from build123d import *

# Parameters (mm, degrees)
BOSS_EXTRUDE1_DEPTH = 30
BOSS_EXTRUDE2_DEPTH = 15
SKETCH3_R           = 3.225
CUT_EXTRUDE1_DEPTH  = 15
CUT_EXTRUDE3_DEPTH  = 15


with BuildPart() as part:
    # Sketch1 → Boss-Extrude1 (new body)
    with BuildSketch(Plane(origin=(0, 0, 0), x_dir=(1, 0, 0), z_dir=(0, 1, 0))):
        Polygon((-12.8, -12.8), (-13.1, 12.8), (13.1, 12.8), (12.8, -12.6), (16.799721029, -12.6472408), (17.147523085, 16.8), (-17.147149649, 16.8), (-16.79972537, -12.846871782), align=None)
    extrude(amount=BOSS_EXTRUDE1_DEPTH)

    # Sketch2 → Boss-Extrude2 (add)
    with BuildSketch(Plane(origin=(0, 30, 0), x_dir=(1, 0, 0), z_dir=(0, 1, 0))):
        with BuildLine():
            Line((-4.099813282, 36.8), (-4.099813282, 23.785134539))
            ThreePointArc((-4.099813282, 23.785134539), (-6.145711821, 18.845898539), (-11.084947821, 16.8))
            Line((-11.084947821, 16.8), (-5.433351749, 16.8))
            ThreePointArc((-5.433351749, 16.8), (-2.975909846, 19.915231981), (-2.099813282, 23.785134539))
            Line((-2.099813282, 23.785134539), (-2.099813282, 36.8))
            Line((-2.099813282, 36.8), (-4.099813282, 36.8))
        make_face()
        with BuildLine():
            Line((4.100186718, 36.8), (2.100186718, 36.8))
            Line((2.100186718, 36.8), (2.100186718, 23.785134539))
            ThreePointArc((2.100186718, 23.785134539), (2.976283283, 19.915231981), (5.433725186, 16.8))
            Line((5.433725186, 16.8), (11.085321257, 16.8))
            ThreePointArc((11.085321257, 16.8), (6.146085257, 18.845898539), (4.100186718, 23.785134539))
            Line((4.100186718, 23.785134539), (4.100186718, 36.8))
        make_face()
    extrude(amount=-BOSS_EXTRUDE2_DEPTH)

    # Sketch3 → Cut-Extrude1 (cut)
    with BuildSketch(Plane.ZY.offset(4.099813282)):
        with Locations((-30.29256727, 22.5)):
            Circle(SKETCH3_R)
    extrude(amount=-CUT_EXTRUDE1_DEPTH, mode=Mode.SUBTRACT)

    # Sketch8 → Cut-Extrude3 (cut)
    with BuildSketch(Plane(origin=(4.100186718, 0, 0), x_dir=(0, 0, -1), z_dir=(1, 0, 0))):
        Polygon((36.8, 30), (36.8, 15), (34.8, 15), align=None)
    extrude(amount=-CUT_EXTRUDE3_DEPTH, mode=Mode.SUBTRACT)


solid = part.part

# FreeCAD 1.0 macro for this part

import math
import FreeCAD as App
import Part
import Sketcher

V = App.Vector
Q = App.Units.Quantity

doc = App.newDocument("Part")
body = doc.addObject("PartDesign::Body", "Body")

# Sketch on XZ plane
sketch1 = body.newObject("Sketcher::SketchObject", "Sketch")
sketch1.AttachmentSupport = (doc.getObject("XZ_Plane"), [""])
sketch1.MapMode = "FlatFace"
sketch1.addGeometry([
    Part.LineSegment(V(-12.8, 12.8, 0), V(-13.1, -12.8, 0)),  # 0
    Part.LineSegment(V(-13.1, -12.8, 0), V(13.1, -12.8, 0)),  # 1
    Part.LineSegment(V(13.1, -12.8, 0), V(12.8, 12.6, 0)),  # 2
    Part.LineSegment(V(12.8, 12.6, 0), V(16.8, 12.6, 0)),  # 3
    Part.LineSegment(V(16.8, 12.6, 0), V(17.1, -16.8, 0)),  # 4
    Part.LineSegment(V(17.1, -16.8, 0), V(-17.1, -16.8, 0)),  # 5
    Part.LineSegment(V(-17.1, -16.8, 0), V(-16.8, 12.8, 0)),  # 6
    Part.LineSegment(V(-16.8, 12.8, 0), V(-12.8, 12.8, 0)),  # 7
], False)
sketch1.addConstraint([
    Sketcher.Constraint("Coincident", 0, 2, 1, 1),
    Sketcher.Constraint("Coincident", 1, 2, 2, 1),
    Sketcher.Constraint("Coincident", 2, 2, 3, 1),
    Sketcher.Constraint("Coincident", 3, 2, 4, 1),
    Sketcher.Constraint("Coincident", 4, 2, 5, 1),
    Sketcher.Constraint("Coincident", 5, 2, 6, 1),
    Sketcher.Constraint("Coincident", 6, 2, 7, 1),
    Sketcher.Constraint("Coincident", 7, 2, 0, 1),
    Sketcher.Constraint("Horizontal", 1),
    Sketcher.Constraint("Horizontal", 5),
    Sketcher.Constraint("Perpendicular", 2, 3),
    Sketcher.Constraint("Perpendicular", 3, 4),
    Sketcher.Constraint("Parallel", 0, 6),
    Sketcher.Constraint("Perpendicular", 6, 7),
    Sketcher.Constraint("Equal", 3, 7),
    Sketcher.Constraint("Distance", 3, Q("4 mm")),
    Sketcher.Constraint("DistanceX", 1, 1, 1, 2, Q("26.2 mm")),
    Sketcher.Constraint("DistanceY", 4, 2, 1, 2, Q("4 mm")),
    Sketcher.Constraint("DistanceX", 0, 2, -1, 1, Q("13.1 mm")),
    Sketcher.Constraint("DistanceY", 0, 2, -1, 1, Q("12.8 mm")),
    Sketcher.Constraint("DistanceX", -1, 1, 2, 2, Q("12.8 mm")),
    Sketcher.Constraint("DistanceY", -1, 1, 2, 2, Q("12.6 mm")),
    Sketcher.Constraint("DistanceX", 7, 2, -1, 1, Q("12.8 mm")),
    Sketcher.Constraint("DistanceY", -1, 1, 7, 2, Q("12.8 mm")),
])
pad1 = body.newObject("PartDesign::Pad", "Pad")
pad1.Profile = sketch1
pad1.Length = 30
pad1.Reversed = True

# Sketch on XZ plane
sketch2 = body.newObject("Sketcher::SketchObject", "Sketch001")
sketch2.AttachmentSupport = (doc.getObject("XZ_Plane"), [""])
sketch2.MapMode = "FlatFace"
sketch2.AttachmentOffset = App.Placement(V(0, 0, -30), App.Rotation())
sketch2.addGeometry([
    Part.LineSegment(V(-4.1, -36.8, 0), V(-4.1, -23.8, 0)),  # 0
    Part.ArcOfCircle(Part.Circle(V(-11.1, -23.8, 0), V(0, 0, 1), 7), math.radians(0), math.radians(90)),  # 1
    Part.LineSegment(V(-11.1, -16.8, 0), V(-5.4, -16.8, 0)),  # 2
    Part.ArcOfCircle(Part.Circle(V(-11.1, -23.8, 0), V(0, 0, 1), 9), math.radians(0), math.radians(51)),  # 3
    Part.LineSegment(V(-2.1, -23.8, 0), V(-2.1, -36.8, 0)),  # 4
    Part.LineSegment(V(-2.1, -36.8, 0), V(-4.1, -36.8, 0)),  # 5
    Part.LineSegment(V(4.1, -36.8, 0), V(2.1, -36.8, 0)),  # 6
    Part.LineSegment(V(2.1, -36.8, 0), V(2.1, -23.8, 0)),  # 7
    Part.ArcOfCircle(Part.Circle(V(11.1, -23.8, 0), V(0, 0, 1), 9), math.radians(129), math.radians(180)),  # 8
    Part.LineSegment(V(5.4, -16.8, 0), V(11.1, -16.8, 0)),  # 9
    Part.ArcOfCircle(Part.Circle(V(11.1, -23.8, 0), V(0, 0, 1), 7), math.radians(90), math.radians(180)),  # 10
    Part.LineSegment(V(4.1, -23.8, 0), V(4.1, -36.8, 0)),  # 11
], False)
sketch2.addConstraint([
    Sketcher.Constraint("Tangent", 0, 2, 1, 1),
    Sketcher.Constraint("Tangent", 1, 2, 2, 1),
    Sketcher.Constraint("Coincident", 2, 2, 3, 2),
    Sketcher.Constraint("Tangent", 3, 1, 4, 1),
    Sketcher.Constraint("Coincident", 4, 2, 5, 1),
    Sketcher.Constraint("Coincident", 5, 2, 0, 1),
    Sketcher.Constraint("Coincident", 6, 2, 7, 1),
    Sketcher.Constraint("Tangent", 7, 2, 8, 2),
    Sketcher.Constraint("Coincident", 8, 1, 9, 1),
    Sketcher.Constraint("Tangent", 9, 2, 10, 1),
    Sketcher.Constraint("Tangent", 10, 2, 11, 1),
    Sketcher.Constraint("Coincident", 11, 2, 6, 1),
    Sketcher.Constraint("Vertical", 0),
    Sketcher.Constraint("Horizontal", 2),
    Sketcher.Constraint("Vertical", 4),
    Sketcher.Constraint("Horizontal", 5),
    Sketcher.Constraint("Horizontal", 6),
    Sketcher.Constraint("Vertical", 7),
    Sketcher.Constraint("Horizontal", 9),
    Sketcher.Constraint("Vertical", 11),
    Sketcher.Constraint("Coincident", 3, 3, 1, 3),
    Sketcher.Constraint("Coincident", 10, 3, 8, 3),
    Sketcher.Constraint("Equal", 3, 8),
    Sketcher.Constraint("Equal", 1, 10),
    Sketcher.Constraint("Horizontal", 3, 3, 8, 3),
    Sketcher.Constraint("Horizontal", 5, 2, 6, 2),
    Sketcher.Constraint("DistanceX", 5, 2, 5, 1, Q("2 mm")),
    Sketcher.Constraint("DistanceY", 1, 2, -1, 1, Q("16.8 mm")),
    Sketcher.Constraint("DistanceY", 4, 2, -1, 1, Q("36.8 mm")),
    Sketcher.Constraint("DistanceX", 4, 2, 6, 2, Q("4.2 mm")),
    Sketcher.Constraint("Radius", 1, Q("6.985135 mm")),
    Sketcher.Constraint("DistanceX", -1, 1, 8, 3, Q("11.085321 mm")),
])
pad2 = body.newObject("PartDesign::Pad", "Pad001")
pad2.Profile = sketch2
pad2.Length = 15

# Sketch on YZ plane
sketch3 = body.newObject("Sketcher::SketchObject", "Sketch002")
sketch3.AttachmentSupport = (doc.getObject("YZ_Plane"), [""])
sketch3.MapMode = "FlatFace"
sketch3.AttachmentOffset = App.Placement(V(0, 0, -4.099813), App.Rotation())
sketch3.addGeometry(Part.Circle(V(22.5, -30.3, 0), V(0, 0, 1), 3.2), False)
sketch3.addConstraint([
    Sketcher.Constraint("Diameter", 0, Q("6.45 mm")),
    Sketcher.Constraint("DistanceX", -1, 1, 0, 3, Q("22.5 mm")),
    Sketcher.Constraint("DistanceY", 0, 3, -1, 1, Q("30.292567 mm")),
])
pocket1 = body.newObject("PartDesign::Pocket", "Pocket")
pocket1.Profile = sketch3
pocket1.Length = 15
pocket1.Reversed = True

# Sketch on YZ plane
sketch4 = body.newObject("Sketcher::SketchObject", "Sketch003")
sketch4.AttachmentSupport = (doc.getObject("YZ_Plane"), [""])
sketch4.MapMode = "FlatFace"
sketch4.AttachmentOffset = App.Placement(V(0, 0, 4.100187), App.Rotation())
sketch4.addGeometry([
    Part.LineSegment(V(15, -36.8, 0), V(30, -36.8, 0)),
    Part.LineSegment(V(30, -36.8, 0), V(15, -34.8, 0)),
    Part.LineSegment(V(15, -34.8, 0), V(15, -36.8, 0)),
], False)
sketch4.addConstraint([
    Sketcher.Constraint("Coincident", 0, 2, 1, 1),
    Sketcher.Constraint("Coincident", 1, 2, 2, 1),
    Sketcher.Constraint("Coincident", 2, 2, 0, 1),
    Sketcher.Constraint("Horizontal", 0),
    Sketcher.Constraint("Vertical", 2),
    Sketcher.Constraint("DistanceX", 0, 1, 0, 2, Q("15 mm")),
    Sketcher.Constraint("DistanceY", 2, 2, 2, 1, Q("2 mm")),
    Sketcher.Constraint("DistanceX", -1, 1, 0, 2, Q("30 mm")),
    Sketcher.Constraint("DistanceY", 0, 2, -1, 1, Q("36.8 mm")),
])
pocket2 = body.newObject("PartDesign::Pocket", "Pocket001")
pocket2.Profile = sketch4
pocket2.Length = 15

doc.recompute()
